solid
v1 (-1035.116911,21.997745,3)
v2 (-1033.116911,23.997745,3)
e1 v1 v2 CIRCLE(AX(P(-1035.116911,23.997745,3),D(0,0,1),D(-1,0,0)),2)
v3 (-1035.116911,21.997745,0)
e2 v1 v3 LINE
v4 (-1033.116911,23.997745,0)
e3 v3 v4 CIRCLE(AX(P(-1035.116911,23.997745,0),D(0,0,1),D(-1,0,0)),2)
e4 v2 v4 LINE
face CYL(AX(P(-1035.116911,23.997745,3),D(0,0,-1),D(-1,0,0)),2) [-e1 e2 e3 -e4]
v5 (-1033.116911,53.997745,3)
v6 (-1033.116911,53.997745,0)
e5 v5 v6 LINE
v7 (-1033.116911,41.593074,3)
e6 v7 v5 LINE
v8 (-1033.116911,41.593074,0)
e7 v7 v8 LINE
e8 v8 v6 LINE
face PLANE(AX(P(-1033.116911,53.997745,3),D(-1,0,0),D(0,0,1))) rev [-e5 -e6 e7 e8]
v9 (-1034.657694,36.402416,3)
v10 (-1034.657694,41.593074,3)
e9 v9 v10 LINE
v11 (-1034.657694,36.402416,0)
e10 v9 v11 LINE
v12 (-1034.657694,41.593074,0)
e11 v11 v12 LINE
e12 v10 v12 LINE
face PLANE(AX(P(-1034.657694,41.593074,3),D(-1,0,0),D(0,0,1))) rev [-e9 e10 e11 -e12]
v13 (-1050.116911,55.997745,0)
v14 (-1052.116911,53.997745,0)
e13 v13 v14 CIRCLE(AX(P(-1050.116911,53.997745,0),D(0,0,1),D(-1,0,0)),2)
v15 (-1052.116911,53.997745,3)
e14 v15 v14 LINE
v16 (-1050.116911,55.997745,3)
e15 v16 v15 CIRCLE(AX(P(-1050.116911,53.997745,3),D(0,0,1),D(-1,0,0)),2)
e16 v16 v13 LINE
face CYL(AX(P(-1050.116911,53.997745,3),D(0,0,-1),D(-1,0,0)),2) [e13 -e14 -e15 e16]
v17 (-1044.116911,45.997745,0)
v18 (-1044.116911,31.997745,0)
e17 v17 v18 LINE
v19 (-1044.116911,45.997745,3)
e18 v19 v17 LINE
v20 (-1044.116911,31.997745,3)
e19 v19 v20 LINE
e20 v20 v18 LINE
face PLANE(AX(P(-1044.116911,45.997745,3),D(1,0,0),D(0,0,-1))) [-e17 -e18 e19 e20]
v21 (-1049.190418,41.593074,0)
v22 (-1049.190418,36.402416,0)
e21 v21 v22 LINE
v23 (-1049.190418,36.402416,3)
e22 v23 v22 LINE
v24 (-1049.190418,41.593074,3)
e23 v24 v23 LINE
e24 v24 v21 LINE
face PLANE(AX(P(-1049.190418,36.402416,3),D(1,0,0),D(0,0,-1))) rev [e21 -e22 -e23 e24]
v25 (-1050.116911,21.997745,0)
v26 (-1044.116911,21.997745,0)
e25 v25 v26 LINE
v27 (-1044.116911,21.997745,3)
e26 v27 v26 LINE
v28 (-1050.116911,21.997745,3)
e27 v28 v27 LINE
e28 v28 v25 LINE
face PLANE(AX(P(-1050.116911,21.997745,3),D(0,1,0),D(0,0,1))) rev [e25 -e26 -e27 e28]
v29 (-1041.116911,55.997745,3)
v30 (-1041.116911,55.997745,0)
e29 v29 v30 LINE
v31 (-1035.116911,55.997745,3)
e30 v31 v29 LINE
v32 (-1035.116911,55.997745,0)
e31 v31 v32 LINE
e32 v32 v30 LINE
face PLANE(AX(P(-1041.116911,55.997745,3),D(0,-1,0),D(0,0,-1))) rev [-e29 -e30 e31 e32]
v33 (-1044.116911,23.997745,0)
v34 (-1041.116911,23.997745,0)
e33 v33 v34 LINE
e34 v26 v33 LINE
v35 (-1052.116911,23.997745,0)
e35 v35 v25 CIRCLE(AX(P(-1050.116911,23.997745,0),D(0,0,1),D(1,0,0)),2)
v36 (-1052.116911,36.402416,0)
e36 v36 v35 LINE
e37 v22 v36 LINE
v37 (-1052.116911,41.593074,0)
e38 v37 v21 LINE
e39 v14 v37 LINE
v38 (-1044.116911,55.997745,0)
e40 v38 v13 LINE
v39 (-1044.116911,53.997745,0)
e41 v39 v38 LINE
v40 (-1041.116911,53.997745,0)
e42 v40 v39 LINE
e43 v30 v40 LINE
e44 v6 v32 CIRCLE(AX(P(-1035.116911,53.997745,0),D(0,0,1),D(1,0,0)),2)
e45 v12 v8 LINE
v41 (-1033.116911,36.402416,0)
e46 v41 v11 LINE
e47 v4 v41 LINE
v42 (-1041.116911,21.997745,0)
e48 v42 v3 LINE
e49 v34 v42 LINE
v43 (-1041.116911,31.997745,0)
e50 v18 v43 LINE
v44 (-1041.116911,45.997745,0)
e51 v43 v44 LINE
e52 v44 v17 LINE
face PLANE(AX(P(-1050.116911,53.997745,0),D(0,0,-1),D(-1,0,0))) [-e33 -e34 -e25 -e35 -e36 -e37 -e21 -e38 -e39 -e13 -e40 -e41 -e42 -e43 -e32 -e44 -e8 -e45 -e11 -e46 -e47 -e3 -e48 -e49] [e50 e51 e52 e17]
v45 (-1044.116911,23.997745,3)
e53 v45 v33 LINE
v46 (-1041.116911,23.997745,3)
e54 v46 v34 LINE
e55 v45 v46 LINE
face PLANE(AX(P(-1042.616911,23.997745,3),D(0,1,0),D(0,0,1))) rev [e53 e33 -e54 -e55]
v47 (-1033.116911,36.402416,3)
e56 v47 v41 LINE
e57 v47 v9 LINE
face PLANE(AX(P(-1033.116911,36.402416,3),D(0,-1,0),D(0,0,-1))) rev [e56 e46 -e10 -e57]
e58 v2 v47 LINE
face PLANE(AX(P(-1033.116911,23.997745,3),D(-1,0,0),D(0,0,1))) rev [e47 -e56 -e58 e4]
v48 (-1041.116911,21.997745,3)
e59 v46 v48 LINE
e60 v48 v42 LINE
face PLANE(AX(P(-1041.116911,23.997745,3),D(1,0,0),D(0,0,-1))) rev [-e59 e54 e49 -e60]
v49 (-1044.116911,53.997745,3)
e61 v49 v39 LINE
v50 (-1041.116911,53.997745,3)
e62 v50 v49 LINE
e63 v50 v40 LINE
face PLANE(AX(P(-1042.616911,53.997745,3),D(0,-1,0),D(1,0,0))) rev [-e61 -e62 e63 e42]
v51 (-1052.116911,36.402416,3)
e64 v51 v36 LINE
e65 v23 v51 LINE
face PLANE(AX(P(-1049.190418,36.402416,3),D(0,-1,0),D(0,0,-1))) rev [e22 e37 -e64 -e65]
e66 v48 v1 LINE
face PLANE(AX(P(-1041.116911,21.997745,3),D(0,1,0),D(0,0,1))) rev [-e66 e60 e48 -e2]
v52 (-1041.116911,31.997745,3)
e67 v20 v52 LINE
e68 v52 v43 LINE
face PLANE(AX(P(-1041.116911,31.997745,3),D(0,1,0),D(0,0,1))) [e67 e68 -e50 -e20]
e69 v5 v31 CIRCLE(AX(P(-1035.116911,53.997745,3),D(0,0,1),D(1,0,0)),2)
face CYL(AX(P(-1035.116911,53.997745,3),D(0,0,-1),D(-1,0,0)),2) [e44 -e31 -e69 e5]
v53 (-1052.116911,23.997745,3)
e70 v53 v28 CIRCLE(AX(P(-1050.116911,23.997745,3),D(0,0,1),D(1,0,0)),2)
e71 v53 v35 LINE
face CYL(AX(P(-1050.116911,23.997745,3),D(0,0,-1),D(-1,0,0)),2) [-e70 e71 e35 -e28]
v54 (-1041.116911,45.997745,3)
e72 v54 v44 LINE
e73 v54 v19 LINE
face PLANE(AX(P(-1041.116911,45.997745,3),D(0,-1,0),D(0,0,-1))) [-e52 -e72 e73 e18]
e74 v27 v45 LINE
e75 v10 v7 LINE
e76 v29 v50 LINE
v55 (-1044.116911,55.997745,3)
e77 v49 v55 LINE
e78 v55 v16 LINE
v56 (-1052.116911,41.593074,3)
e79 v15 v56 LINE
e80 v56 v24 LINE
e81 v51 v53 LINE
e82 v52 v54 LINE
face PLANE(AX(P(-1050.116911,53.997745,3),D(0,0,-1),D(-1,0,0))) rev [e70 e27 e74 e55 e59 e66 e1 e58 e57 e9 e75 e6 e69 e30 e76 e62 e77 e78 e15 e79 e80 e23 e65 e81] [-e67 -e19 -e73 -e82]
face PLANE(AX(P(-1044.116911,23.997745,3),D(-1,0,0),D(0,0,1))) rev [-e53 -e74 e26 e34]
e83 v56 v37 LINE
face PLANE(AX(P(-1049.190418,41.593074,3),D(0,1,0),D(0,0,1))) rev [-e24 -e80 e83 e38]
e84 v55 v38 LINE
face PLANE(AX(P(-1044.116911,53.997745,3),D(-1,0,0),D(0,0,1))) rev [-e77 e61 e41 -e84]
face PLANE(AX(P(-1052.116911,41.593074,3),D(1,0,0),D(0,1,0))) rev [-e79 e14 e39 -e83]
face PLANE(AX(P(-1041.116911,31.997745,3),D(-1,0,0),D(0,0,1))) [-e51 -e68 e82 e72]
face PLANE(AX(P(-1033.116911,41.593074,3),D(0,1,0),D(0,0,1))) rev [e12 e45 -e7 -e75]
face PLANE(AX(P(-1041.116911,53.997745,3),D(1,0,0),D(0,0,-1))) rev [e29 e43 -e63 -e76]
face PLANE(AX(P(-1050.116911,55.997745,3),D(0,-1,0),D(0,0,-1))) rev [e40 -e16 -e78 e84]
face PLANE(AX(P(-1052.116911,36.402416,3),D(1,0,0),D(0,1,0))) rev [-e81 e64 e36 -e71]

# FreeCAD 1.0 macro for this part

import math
import FreeCAD as App
import Part
import Sketcher
from FreeCAD import Vector

doc = App.newDocument("Part")
params = doc.addObject("Spreadsheet::Sheet", "Params")
for row, (alias, value) in enumerate([
    ("sketch1_radius", "2 mm"),
    ("sketch1_width", "6 mm"),
    ("sketch1_width2", "3 mm"),
    ("sketch1_height", "14 mm"),
    ("pad1_length", "3 mm"),
], start=1):
    params.set(f"A{row}", alias)
    params.set(f"B{row}", "=" + value)
    params.setAlias(f"B{row}", alias)

body = doc.addObject("PartDesign::Body", "Body")

sketch1 = body.newObject("Sketcher::SketchObject", "Sketch")
sketch1.AttachmentSupport = (doc.getObject("XY_Plane"), [""])
sketch1.MapMode = "FlatFace"
sketch1.addGeometry([
    Part.LineSegment(Vector(-1033.1, 41.6, 0), Vector(-1033.1, 54, 0)),
    Part.ArcOfCircle(Part.Circle(Vector(-1035.1, 54, 0), Vector(0, 0, 1), 2), math.radians(0), math.radians(90)),
    Part.LineSegment(Vector(-1035.1, 56, 0), Vector(-1041.1, 56, 0)),
    Part.LineSegment(Vector(-1041.1, 56, 0), Vector(-1041.1, 54, 0)),
    Part.LineSegment(Vector(-1041.1, 54, 0), Vector(-1044.1, 54, 0)),
    Part.LineSegment(Vector(-1044.1, 54, 0), Vector(-1044.1, 56, 0)),
    Part.LineSegment(Vector(-1044.1, 56, 0), Vector(-1050.1, 56, 0)),
    Part.ArcOfCircle(Part.Circle(Vector(-1050.1, 54, 0), Vector(0, 0, 1), 2), math.radians(90), math.radians(180)),
    Part.LineSegment(Vector(-1052.1, 54, 0), Vector(-1052.1, 41.6, 0)),
    Part.LineSegment(Vector(-1052.1, 41.6, 0), Vector(-1049.2, 41.6, 0)),
    Part.LineSegment(Vector(-1049.2, 41.6, 0), Vector(-1049.2, 36.4, 0)),
    Part.LineSegment(Vector(-1049.2, 36.4, 0), Vector(-1052.1, 36.4, 0)),
    Part.LineSegment(Vector(-1052.1, 36.4, 0), Vector(-1052.1, 24, 0)),
    Part.ArcOfCircle(Part.Circle(Vector(-1050.1, 24, 0), Vector(0, 0, 1), 2), math.radians(180), math.radians(270)),
    Part.LineSegment(Vector(-1050.1, 22, 0), Vector(-1044.1, 22, 0)),
    Part.LineSegment(Vector(-1044.1, 22, 0), Vector(-1044.1, 24, 0)),
    Part.LineSegment(Vector(-1044.1, 24, 0), Vector(-1041.1, 24, 0)),
    Part.LineSegment(Vector(-1041.1, 24, 0), Vector(-1041.1, 22, 0)),
    Part.LineSegment(Vector(-1041.1, 22, 0), Vector(-1035.1, 22, 0)),
    Part.ArcOfCircle(Part.Circle(Vector(-1035.1, 24, 0), Vector(0, 0, 1), 2), math.radians(-90), math.radians(0)),
    Part.LineSegment(Vector(-1033.1, 24, 0), Vector(-1033.1, 36.4, 0)),
    Part.LineSegment(Vector(-1033.1, 36.4, 0), Vector(-1034.7, 36.4, 0)),
    Part.LineSegment(Vector(-1034.7, 36.4, 0), Vector(-1034.7, 41.6, 0)),
    Part.LineSegment(Vector(-1034.7, 41.6, 0), Vector(-1033.1, 41.6, 0)),
    Part.LineSegment(Vector(-1044.1, 32, 0), Vector(-1044.1, 46, 0)),
    Part.LineSegment(Vector(-1044.1, 46, 0), Vector(-1041.1, 46, 0)),
    Part.LineSegment(Vector(-1041.1, 46, 0), Vector(-1041.1, 32, 0)),
    Part.LineSegment(Vector(-1041.1, 32, 0), Vector(-1044.1, 32, 0)),
], False)
sketch1.addConstraint([
    Sketcher.Constraint("Tangent", 0, 2, 1, 1),
    Sketcher.Constraint("Tangent", 1, 2, 2, 1),
    Sketcher.Constraint("Coincident", 2, 2, 3, 1),
    Sketcher.Constraint("Coincident", 3, 2, 4, 1),
    Sketcher.Constraint("Coincident", 4, 2, 5, 1),
    Sketcher.Constraint("Coincident", 5, 2, 6, 1),
    Sketcher.Constraint("Tangent", 6, 2, 7, 1),
    Sketcher.Constraint("Tangent", 7, 2, 8, 1),
    Sketcher.Constraint("Coincident", 8, 2, 9, 1),
    Sketcher.Constraint("Coincident", 9, 2, 10, 1),
    Sketcher.Constraint("Coincident", 10, 2, 11, 1),
    Sketcher.Constraint("Coincident", 11, 2, 12, 1),
    Sketcher.Constraint("Tangent", 12, 2, 13, 1),
    Sketcher.Constraint("Tangent", 13, 2, 14, 1),
    Sketcher.Constraint("Coincident", 14, 2, 15, 1),
    Sketcher.Constraint("Coincident", 15, 2, 16, 1),
    Sketcher.Constraint("Coincident", 16, 2, 17, 1),
    Sketcher.Constraint("Coincident", 17, 2, 18, 1),
    Sketcher.Constraint("Tangent", 18, 2, 19, 1),
    Sketcher.Constraint("Tangent", 19, 2, 20, 1),
    Sketcher.Constraint("Coincident", 20, 2, 21, 1),
    Sketcher.Constraint("Coincident", 21, 2, 22, 1),
    Sketcher.Constraint("Coincident", 22, 2, 23, 1),
    Sketcher.Constraint("Coincident", 23, 2, 0, 1),
    Sketcher.Constraint("Coincident", 24, 2, 25, 1),
    Sketcher.Constraint("Coincident", 25, 2, 26, 1),
    Sketcher.Constraint("Coincident", 26, 2, 27, 1),
    Sketcher.Constraint("Coincident", 27, 2, 24, 1),
    Sketcher.Constraint("Vertical", 0),
    Sketcher.Constraint("Horizontal", 2),
    Sketcher.Constraint("Vertical", 3),
    Sketcher.Constraint("Horizontal", 4),
    Sketcher.Constraint("Vertical", 5),
    Sketcher.Constraint("Horizontal", 6),
    Sketcher.Constraint("Vertical", 8),
    Sketcher.Constraint("Horizontal", 9),
    Sketcher.Constraint("Vertical", 10),
    Sketcher.Constraint("Horizontal", 11),
    Sketcher.Constraint("Vertical", 12),
    Sketcher.Constraint("Horizontal", 14),
    Sketcher.Constraint("Vertical", 15),
    Sketcher.Constraint("Horizontal", 16),
    Sketcher.Constraint("Vertical", 17),
    Sketcher.Constraint("Horizontal", 18),
    Sketcher.Constraint("Vertical", 20),
    Sketcher.Constraint("Horizontal", 21),
    Sketcher.Constraint("Vertical", 22),
    Sketcher.Constraint("Horizontal", 23),
    Sketcher.Constraint("Vertical", 24),
    Sketcher.Constraint("Horizontal", 25),
    Sketcher.Constraint("Vertical", 26),
    Sketcher.Constraint("Horizontal", 27),
    Sketcher.Constraint("Equal", 1, 7),
    Sketcher.Constraint("Equal", 7, 13),
    Sketcher.Constraint("Equal", 13, 19),
    Sketcher.Constraint("Horizontal", 1, 3, 7, 3),
    Sketcher.Constraint("Horizontal", 13, 3, 19, 3),
    Sketcher.Constraint("Horizontal", 0, 2, 3, 2),
    Sketcher.Constraint("Horizontal", 12, 2, 15, 2),
    Sketcher.Constraint("Horizontal", 11, 2, 20, 2),
    Sketcher.Constraint("Horizontal", 9, 2, 22, 2),
    Sketcher.Constraint("Vertical", 7, 3, 13, 3),
    Sketcher.Constraint("Vertical", 1, 3, 19, 3),
    Sketcher.Constraint("Vertical", 5, 2, 14, 2),
    Sketcher.Constraint("Vertical", 3, 2, 16, 2),
    Sketcher.Constraint("Vertical", 15, 2, 24, 2),
    Sketcher.Constraint("Vertical", 17, 2, 25, 2),
    Sketcher.Constraint("Equal", 2, 6),
    Sketcher.Constraint("Equal", 8, 12),
    Sketcher.Constraint("Radius", 1, 2.0),
    Sketcher.Constraint("DistanceX", 2, 2, 2, 1, 6.0),
    Sketcher.Constraint("DistanceX", 4, 2, 4, 1, 3.0),
    Sketcher.Constraint("DistanceY", 24, 1, 24, 2, 14.0),
    Sketcher.Constraint("DistanceY", 13, 3, 7, 3, 30.0),
    Sketcher.Constraint("DistanceY", 24, 2, 4, 2, 8.0),
    Sketcher.Constraint("DistanceY", 0, 1, 0, 2, 12.404671),
    Sketcher.Constraint("DistanceX", 9, 1, 9, 2, 2.926492),
    Sketcher.Constraint("DistanceX", 21, 2, 21, 1, 1.540783),
    Sketcher.Constraint("DistanceX", 1, 3, -1, 1, 1035.116911),
    Sketcher.Constraint("DistanceY", -1, 1, 1, 3, 53.997745),
])
sketch1.setExpression("Constraints[69]", "Params.sketch1_radius")
sketch1.setExpression("Constraints[70]", "Params.sketch1_width")
sketch1.setExpression("Constraints[71]", "Params.sketch1_width2")
sketch1.setExpression("Constraints[72]", "Params.sketch1_height")
pad1 = body.newObject("PartDesign::Pad", "Pad")
pad1.Profile = sketch1
pad1.setExpression("Length", "Params.pad1_length")

doc.recompute()
